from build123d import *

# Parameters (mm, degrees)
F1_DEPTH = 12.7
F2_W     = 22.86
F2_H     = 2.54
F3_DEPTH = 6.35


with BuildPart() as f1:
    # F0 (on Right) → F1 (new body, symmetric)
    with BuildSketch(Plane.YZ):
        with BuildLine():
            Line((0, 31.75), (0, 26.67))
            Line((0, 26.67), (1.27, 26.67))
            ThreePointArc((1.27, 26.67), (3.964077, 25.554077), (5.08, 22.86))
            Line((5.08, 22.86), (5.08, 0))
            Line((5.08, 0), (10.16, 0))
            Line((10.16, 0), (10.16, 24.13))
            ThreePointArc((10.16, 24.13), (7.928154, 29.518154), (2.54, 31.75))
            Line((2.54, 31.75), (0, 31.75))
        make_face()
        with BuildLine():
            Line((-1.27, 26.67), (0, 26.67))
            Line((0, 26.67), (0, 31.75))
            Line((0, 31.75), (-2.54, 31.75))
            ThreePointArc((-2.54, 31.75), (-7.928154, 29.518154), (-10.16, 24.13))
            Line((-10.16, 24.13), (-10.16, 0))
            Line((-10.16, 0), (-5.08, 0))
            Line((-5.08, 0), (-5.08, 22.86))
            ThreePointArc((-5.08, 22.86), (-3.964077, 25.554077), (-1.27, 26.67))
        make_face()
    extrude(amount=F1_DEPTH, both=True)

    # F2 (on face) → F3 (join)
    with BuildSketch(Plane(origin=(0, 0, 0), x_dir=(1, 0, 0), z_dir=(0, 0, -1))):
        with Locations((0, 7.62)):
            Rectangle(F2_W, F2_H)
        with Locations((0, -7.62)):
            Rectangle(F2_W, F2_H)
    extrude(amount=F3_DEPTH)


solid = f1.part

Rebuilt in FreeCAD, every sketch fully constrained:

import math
import FreeCAD as App
import Part
import Sketcher
from FreeCAD import Vector
Q = App.Units.Quantity

doc = App.newDocument("Part")
body = doc.addObject("PartDesign::Body", "Body")

sketch1 = doc.addObject("Sketcher::SketchObject", "Sketch")
body.addObject(sketch1)
sketch1.AttachmentSupport = (doc.YZ_Plane, [""])
sketch1.MapMode = "FlatFace"
sketch1.addGeometry(Part.ArcOfCircle(Part.Circle(Vector(1.270001, 22.860001, 0), Vector(0, 0, 1), 3.809999), math.radians(-0.000008), math.radians(90.000008)), False)
sketch1.addGeometry(Part.LineSegment(Vector(5.08, 22.86, 0), Vector(5.08, 0, 0)), False)
sketch1.addGeometry(Part.LineSegment(Vector(5.08, 0, 0), Vector(10.16, 0, 0)), False)
sketch1.addGeometry(Part.LineSegment(Vector(10.16, 0, 0), Vector(10.16, 24.13, 0)), False)
sketch1.addGeometry(Part.ArcOfCircle(Part.Circle(Vector(2.540001, 24.130001, 0), Vector(0, 0, 1), 7.619999), math.radians(-0.000008), math.radians(90.000008)), False)
sketch1.addGeometry(Part.LineSegment(Vector(2.54, 31.75, 0), Vector(-2.54, 31.75, 0)), False)
sketch1.addGeometry(Part.ArcOfCircle(Part.Circle(Vector(-2.540001, 24.130001, 0), Vector(0, 0, 1), 7.619999), math.radians(89.999992), math.radians(180.000008)), False)
sketch1.addGeometry(Part.LineSegment(Vector(-10.16, 24.13, 0), Vector(-10.16, 0, 0)), False)
sketch1.addGeometry(Part.LineSegment(Vector(-10.16, 0, 0), Vector(-5.08, 0, 0)), False)
sketch1.addGeometry(Part.LineSegment(Vector(-5.08, 0, 0), Vector(-5.08, 22.86, 0)), False)
sketch1.addGeometry(Part.ArcOfCircle(Part.Circle(Vector(-1.270001, 22.860001, 0), Vector(0, 0, 1), 3.809999), math.radians(89.999992), math.radians(180.000008)), False)
sketch1.addGeometry(Part.LineSegment(Vector(-1.27, 26.67, 0), Vector(1.27, 26.67, 0)), False)
sketch1.addConstraint(Sketcher.Constraint("Tangent", 0, 1, 1, 1))
sketch1.addConstraint(Sketcher.Constraint("Coincident", 1, 2, 2, 1))
sketch1.addConstraint(Sketcher.Constraint("Coincident", 2, 2, 3, 1))
sketch1.addConstraint(Sketcher.Constraint("Tangent", 3, 2, 4, 1))
sketch1.addConstraint(Sketcher.Constraint("Tangent", 4, 2, 5, 1))
sketch1.addConstraint(Sketcher.Constraint("Tangent", 5, 2, 6, 1))
sketch1.addConstraint(Sketcher.Constraint("Tangent", 6, 2, 7, 1))
sketch1.addConstraint(Sketcher.Constraint("Coincident", 7, 2, 8, 1))
sketch1.addConstraint(Sketcher.Constraint("Coincident", 8, 2, 9, 1))
sketch1.addConstraint(Sketcher.Constraint("Tangent", 9, 2, 10, 2))
sketch1.addConstraint(Sketcher.Constraint("Tangent", 10, 1, 11, 1))
sketch1.addConstraint(Sketcher.Constraint("Tangent", 11, 2, 0, 2))
sketch1.addConstraint(Sketcher.Constraint("Vertical", 1))
sketch1.addConstraint(Sketcher.Constraint("Horizontal", 2))
sketch1.addConstraint(Sketcher.Constraint("Vertical", 3))
sketch1.addConstraint(Sketcher.Constraint("Horizontal", 5))
sketch1.addConstraint(Sketcher.Constraint("Vertical", 7))
sketch1.addConstraint(Sketcher.Constraint("Horizontal", 8))
sketch1.addConstraint(Sketcher.Constraint("Vertical", 9))
sketch1.addConstraint(Sketcher.Constraint("Horizontal", 11))
sketch1.addConstraint(Sketcher.Constraint("Equal", 4, 6))
sketch1.addConstraint(Sketcher.Constraint("Equal", 0, 10))
sketch1.addConstraint(Sketcher.Constraint("Symmetric", 2, 2, 7, 2, -1, 1))
sketch1.addConstraint(Sketcher.Constraint("Symmetric", 1, 2, 8, 2, -2))
sketch1.addConstraint(Sketcher.Constraint("Equal", 2, 5))
sketch1.addConstraint(Sketcher.Constraint("Radius", 4, Q("0.3 in")))
sketch1.addConstraint(Sketcher.Constraint("Radius", 0, Q("0.15 in")))
sketch1.addConstraint(Sketcher.Constraint("DistanceX", 2, 1, 2, 2, Q("0.2 in")))
sketch1.addConstraint(Sketcher.Constraint("DistanceY", 1, 2, 1, 1, Q("0.9 in")))
sketch1.addConstraint(Sketcher.Constraint("DistanceY", 3, 1, 3, 2, Q("0.95 in")))
pad1 = doc.addObject("PartDesign::Pad", "Pad")
body.addObject(pad1)
pad1.Profile = sketch1
pad1.Length = Q("1 in")
pad1.Midplane = True

sketch2 = doc.addObject("Sketcher::SketchObject", "Sketch001")
body.addObject(sketch2)
sketch2.AttachmentSupport = (doc.XY_Plane, [""])
sketch2.MapMode = "FlatFace"
sketch2.addGeometry(Part.LineSegment(Vector(-11.43, -8.89, 0), Vector(-11.43, -6.35, 0)), False)
sketch2.addGeometry(Part.LineSegment(Vector(-11.43, -6.35, 0), Vector(11.43, -6.35, 0)), False)
sketch2.addGeometry(Part.LineSegment(Vector(11.43, -6.35, 0), Vector(11.43, -8.89, 0)), False)
sketch2.addGeometry(Part.LineSegment(Vector(11.43, -8.89, 0), Vector(-11.43, -8.89, 0)), False)
sketch2.addGeometry(Part.LineSegment(Vector(-11.43, 6.35, 0), Vector(-11.43, 8.89, 0)), False)
sketch2.addGeometry(Part.LineSegment(Vector(-11.43, 8.89, 0), Vector(11.43, 8.89, 0)), False)
sketch2.addGeometry(Part.LineSegment(Vector(11.43, 8.89, 0), Vector(11.43, 6.35, 0)), False)
sketch2.addGeometry(Part.LineSegment(Vector(11.43, 6.35, 0), Vector(-11.43, 6.35, 0)), False)
sketch2.addConstraint(Sketcher.Constraint("Coincident", 0, 2, 1, 1))
sketch2.addConstraint(Sketcher.Constraint("Coincident", 1, 2, 2, 1))
sketch2.addConstraint(Sketcher.Constraint("Coincident", 2, 2, 3, 1))
sketch2.addConstraint(Sketcher.Constraint("Coincident", 3, 2, 0, 1))
sketch2.addConstraint(Sketcher.Constraint("Coincident", 4, 2, 5, 1))
sketch2.addConstraint(Sketcher.Constraint("Coincident", 5, 2, 6, 1))
sketch2.addConstraint(Sketcher.Constraint("Coincident", 6, 2, 7, 1))
sketch2.addConstraint(Sketcher.Constraint("Coincident", 7, 2, 4, 1))
sketch2.addConstraint(Sketcher.Constraint("Vertical", 0))
sketch2.addConstraint(Sketcher.Constraint("Horizontal", 1))
sketch2.addConstraint(Sketcher.Constraint("Vertical", 2))
sketch2.addConstraint(Sketcher.Constraint("Horizontal", 3))
sketch2.addConstraint(Sketcher.Constraint("Vertical", 4))
sketch2.addConstraint(Sketcher.Constraint("Horizontal", 5))
sketch2.addConstraint(Sketcher.Constraint("Vertical", 6))
sketch2.addConstraint(Sketcher.Constraint("Horizontal", 7))
sketch2.addConstraint(Sketcher.Constraint("Symmetric", 2, 2, 4, 2, -1, 1))
sketch2.addConstraint(Sketcher.Constraint("Symmetric", 0, 2, 6, 2, -1, 1))
sketch2.addConstraint(Sketcher.Constraint("Vertical", 3, 2, 4, 2))
sketch2.addConstraint(Sketcher.Constraint("DistanceX", 1, 1, 1, 2, Q("0.9 in")))
sketch2.addConstraint(Sketcher.Constraint("DistanceY", 0, 1, 0, 2, Q("0.1 in")))
sketch2.addConstraint(Sketcher.Constraint("DistanceY", 0, 2, 4, 2, Q("0.6 in")))
pad2 = doc.addObject("PartDesign::Pad", "Pad001")
body.addObject(pad2)
pad2.Profile = sketch2
pad2.Length = Q("0.25 in")
pad2.Reversed = True

doc.recompute()
